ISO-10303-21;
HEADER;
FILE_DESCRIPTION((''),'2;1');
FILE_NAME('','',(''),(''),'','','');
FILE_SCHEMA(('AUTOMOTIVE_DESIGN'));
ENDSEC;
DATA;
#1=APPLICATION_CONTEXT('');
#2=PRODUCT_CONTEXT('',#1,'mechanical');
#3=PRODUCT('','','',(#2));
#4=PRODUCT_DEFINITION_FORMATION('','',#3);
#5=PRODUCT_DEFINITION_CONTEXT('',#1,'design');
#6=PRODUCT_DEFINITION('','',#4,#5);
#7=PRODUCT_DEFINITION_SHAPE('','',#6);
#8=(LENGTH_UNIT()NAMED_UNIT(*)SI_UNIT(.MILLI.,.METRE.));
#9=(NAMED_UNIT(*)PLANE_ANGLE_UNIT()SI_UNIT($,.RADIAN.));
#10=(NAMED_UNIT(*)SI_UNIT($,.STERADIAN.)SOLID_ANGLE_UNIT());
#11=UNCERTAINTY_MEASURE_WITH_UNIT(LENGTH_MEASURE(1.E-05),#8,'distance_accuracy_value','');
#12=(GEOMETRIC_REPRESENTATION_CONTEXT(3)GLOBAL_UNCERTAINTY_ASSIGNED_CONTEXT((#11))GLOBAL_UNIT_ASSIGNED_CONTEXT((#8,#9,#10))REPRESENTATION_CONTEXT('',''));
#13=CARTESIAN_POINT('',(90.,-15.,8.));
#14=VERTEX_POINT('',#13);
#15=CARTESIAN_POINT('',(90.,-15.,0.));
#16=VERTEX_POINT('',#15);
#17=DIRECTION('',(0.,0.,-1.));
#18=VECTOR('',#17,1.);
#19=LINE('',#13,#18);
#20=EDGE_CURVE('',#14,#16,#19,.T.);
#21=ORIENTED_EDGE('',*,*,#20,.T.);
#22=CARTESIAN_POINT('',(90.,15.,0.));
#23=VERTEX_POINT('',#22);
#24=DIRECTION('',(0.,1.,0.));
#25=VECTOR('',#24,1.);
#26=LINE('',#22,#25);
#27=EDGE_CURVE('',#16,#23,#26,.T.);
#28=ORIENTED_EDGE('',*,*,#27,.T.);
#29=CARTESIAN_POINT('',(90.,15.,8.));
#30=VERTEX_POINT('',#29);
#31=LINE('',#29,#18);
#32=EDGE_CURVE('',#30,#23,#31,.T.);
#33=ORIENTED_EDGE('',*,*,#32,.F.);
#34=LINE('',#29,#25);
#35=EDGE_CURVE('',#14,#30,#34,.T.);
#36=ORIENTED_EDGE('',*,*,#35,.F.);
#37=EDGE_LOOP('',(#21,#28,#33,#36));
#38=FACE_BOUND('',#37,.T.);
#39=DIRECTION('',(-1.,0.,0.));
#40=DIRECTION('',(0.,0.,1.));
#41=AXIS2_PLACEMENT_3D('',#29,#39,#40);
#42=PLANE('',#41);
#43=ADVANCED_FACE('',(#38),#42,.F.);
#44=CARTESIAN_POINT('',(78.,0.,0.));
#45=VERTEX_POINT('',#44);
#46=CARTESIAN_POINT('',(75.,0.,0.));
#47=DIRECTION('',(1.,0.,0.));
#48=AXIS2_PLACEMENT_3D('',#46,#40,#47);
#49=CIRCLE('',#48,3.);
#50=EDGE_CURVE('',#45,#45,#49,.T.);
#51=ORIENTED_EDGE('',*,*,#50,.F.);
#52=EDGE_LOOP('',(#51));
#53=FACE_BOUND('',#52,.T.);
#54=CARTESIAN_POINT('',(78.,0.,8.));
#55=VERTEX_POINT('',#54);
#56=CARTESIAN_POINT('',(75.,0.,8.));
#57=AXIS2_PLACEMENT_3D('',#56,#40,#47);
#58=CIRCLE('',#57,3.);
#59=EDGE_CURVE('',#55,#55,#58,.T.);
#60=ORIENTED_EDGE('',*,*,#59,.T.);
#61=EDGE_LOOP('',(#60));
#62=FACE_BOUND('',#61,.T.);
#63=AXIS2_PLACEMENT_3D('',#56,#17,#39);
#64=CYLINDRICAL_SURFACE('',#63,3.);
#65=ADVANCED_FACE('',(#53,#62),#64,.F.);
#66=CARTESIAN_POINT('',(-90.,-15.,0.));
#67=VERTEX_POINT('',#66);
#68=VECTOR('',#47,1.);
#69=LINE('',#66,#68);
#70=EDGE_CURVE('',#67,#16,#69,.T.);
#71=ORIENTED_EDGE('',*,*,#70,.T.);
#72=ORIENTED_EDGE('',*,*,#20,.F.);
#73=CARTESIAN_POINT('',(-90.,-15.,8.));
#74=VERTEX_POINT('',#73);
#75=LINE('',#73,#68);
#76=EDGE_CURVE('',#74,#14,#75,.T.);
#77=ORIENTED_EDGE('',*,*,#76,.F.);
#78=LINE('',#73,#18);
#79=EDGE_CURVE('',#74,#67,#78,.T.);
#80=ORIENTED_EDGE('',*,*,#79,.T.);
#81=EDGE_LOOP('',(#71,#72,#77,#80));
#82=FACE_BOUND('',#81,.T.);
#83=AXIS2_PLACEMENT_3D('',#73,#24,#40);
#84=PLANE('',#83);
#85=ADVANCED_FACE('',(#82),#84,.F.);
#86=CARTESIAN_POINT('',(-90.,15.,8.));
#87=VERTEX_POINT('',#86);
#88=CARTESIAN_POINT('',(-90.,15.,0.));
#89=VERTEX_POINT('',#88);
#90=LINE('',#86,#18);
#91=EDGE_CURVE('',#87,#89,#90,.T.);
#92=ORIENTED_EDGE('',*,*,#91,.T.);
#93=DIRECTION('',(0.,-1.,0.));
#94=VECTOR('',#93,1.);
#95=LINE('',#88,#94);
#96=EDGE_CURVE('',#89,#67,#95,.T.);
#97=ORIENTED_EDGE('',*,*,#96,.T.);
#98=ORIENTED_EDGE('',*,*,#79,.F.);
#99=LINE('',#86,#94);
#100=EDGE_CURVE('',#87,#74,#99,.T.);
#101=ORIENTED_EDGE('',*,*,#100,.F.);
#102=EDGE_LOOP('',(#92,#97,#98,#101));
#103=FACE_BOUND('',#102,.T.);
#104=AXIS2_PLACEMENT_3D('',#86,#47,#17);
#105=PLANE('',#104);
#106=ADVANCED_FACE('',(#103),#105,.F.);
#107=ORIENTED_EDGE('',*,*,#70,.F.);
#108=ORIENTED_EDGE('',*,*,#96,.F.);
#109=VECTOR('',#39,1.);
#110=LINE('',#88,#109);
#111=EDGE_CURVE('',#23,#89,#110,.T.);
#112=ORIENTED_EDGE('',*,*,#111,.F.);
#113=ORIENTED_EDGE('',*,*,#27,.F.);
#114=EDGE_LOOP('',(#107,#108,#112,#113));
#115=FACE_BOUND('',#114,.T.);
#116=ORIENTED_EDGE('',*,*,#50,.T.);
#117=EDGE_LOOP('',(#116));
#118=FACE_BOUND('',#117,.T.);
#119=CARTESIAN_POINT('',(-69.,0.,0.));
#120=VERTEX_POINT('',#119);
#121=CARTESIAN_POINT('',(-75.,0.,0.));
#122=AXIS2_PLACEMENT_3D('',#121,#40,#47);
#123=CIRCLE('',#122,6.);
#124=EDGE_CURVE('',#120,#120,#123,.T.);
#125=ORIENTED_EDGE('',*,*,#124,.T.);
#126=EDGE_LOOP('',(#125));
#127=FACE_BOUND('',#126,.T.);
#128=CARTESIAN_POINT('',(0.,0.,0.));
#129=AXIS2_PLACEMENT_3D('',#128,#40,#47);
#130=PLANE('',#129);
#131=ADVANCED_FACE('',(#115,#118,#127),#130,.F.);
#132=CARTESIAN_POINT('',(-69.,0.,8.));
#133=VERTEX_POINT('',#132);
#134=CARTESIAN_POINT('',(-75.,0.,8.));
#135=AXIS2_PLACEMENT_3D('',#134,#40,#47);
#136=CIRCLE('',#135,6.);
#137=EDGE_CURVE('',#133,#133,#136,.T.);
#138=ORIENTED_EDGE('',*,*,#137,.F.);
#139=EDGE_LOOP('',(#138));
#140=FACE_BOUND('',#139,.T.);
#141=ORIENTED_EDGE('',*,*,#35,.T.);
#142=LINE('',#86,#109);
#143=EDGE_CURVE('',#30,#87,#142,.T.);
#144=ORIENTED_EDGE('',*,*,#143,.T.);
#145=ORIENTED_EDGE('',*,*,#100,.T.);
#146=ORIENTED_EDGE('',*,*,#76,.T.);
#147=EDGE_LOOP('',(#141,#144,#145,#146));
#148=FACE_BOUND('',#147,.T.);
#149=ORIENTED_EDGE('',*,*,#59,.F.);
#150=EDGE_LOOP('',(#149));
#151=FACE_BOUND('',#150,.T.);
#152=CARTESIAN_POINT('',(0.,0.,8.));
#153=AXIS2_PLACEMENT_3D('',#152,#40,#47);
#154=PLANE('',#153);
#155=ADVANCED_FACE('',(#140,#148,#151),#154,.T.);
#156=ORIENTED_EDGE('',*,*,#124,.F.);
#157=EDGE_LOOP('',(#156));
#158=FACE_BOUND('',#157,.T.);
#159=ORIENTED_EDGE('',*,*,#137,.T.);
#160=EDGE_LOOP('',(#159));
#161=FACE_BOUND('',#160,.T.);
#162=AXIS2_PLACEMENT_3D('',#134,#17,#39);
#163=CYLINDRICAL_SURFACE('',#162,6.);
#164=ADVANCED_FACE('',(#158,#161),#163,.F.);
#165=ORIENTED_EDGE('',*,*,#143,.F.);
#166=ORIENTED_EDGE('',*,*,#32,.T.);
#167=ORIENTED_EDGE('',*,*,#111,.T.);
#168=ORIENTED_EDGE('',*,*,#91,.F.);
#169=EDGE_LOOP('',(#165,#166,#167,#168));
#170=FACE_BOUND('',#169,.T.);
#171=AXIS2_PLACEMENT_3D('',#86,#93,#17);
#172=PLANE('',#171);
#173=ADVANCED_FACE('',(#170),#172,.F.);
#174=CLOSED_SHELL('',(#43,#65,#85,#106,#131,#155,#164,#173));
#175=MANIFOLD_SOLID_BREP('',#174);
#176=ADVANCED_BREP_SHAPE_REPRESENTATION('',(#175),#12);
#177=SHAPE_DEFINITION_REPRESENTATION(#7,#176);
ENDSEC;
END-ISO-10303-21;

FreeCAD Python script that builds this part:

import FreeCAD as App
import Part
import Sketcher

V = App.Vector

doc = App.newDocument("Part")
params = doc.addObject("Spreadsheet::Sheet", "Params")
for row, (alias, value) in enumerate([
    ("sketch1_diameter", "12 mm"),
    ("sketch1_diameter2", "6 mm"),
    ("sketch1_width", "180 mm"),
    ("sketch1_height", "30 mm"),
    ("pad1_length", "8 mm"),
], start=1):
    params.set(f"A{row}", alias)
    params.set(f"B{row}", "=" + value)
    params.setAlias(f"B{row}", alias)

body = doc.addObject("PartDesign::Body", "Body")

# Sketch on XY plane
sketch1 = doc.addObject("Sketcher::SketchObject", "Sketch")
body.addObject(sketch1)
sketch1.AttachmentSupport = (doc.XY_Plane, [""])
sketch1.MapMode = "FlatFace"
sketch1.addGeometry([
    Part.LineSegment(V(-90, 15, 0), V(-90, -15, 0)),  # 0
    Part.LineSegment(V(-90, -15, 0), V(90, -15, 0)),  # 1
    Part.LineSegment(V(90, -15, 0), V(90, 15, 0)),  # 2
    Part.LineSegment(V(90, 15, 0), V(-90, 15, 0)),  # 3
    Part.Circle(V(-75, 0, 0), V(0, 0, 1), 6),  # 4
    Part.Circle(V(75, 0, 0), V(0, 0, 1), 3),  # 5
], False)
sketch1.addConstraint([
    Sketcher.Constraint("Coincident", 0, 2, 1, 1),
    Sketcher.Constraint("Coincident", 1, 2, 2, 1),
    Sketcher.Constraint("Coincident", 2, 2, 3, 1),
    Sketcher.Constraint("Coincident", 3, 2, 0, 1),
    Sketcher.Constraint("Vertical", 0),
    Sketcher.Constraint("Horizontal", 1),
    Sketcher.Constraint("Vertical", 2),
    Sketcher.Constraint("Horizontal", 3),
    Sketcher.Constraint("Symmetric", 4, 3, 5, 3, -1, 1),
    Sketcher.Constraint("Symmetric", 0, 2, 2, 2, -1, 1),
    Sketcher.Constraint("PointOnObject", 4, 3, -1),
    Sketcher.Constraint("Diameter", 4, 12.0),
    Sketcher.Constraint("Diameter", 5, 6.0),
    Sketcher.Constraint("DistanceX", 1, 1, 1, 2, 180.0),
    Sketcher.Constraint("DistanceY", 0, 2, 0, 1, 30.0),
    Sketcher.Constraint("DistanceX", 4, 3, -1, 1, 75.0),
])
sketch1.setExpression("Constraints[11]", "Params.sketch1_diameter")
sketch1.setExpression("Constraints[12]", "Params.sketch1_diameter2")
sketch1.setExpression("Constraints[13]", "Params.sketch1_width")
sketch1.setExpression("Constraints[14]", "Params.sketch1_height")
pad1 = doc.addObject("PartDesign::Pad", "Pad")
body.addObject(pad1)
pad1.Profile = sketch1
pad1.setExpression("Length", "Params.pad1_length")

doc.recompute()
